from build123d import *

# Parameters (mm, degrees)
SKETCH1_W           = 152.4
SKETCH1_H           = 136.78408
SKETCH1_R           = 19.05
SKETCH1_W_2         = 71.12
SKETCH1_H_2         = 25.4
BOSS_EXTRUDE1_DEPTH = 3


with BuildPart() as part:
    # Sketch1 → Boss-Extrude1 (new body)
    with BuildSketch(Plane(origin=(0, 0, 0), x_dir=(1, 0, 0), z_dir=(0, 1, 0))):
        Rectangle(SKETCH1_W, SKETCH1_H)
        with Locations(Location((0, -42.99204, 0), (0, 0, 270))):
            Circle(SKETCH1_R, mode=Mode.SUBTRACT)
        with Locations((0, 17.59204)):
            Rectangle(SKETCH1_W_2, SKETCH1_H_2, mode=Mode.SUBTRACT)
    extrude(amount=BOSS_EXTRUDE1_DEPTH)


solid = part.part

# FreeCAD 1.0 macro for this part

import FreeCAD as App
import Part
import Sketcher
Q = App.Units.Quantity


def add_polygon(sketch, points):
    """Adds a closed chain of lines whose ends are joined by coincident constraints."""
    first, n = sketch.GeometryCount, len(points)
    for a, b in zip(points, points[1:] + points[:1]):
        sketch.addGeometry(Part.LineSegment(App.Vector(*a, 0), App.Vector(*b, 0)), False)
    for i in range(n):
        sketch.addConstraint(Sketcher.Constraint("Coincident", first + i, 2, first + (i + 1) % n, 1))

doc = App.newDocument("Part")
body = doc.addObject("PartDesign::Body", "Body")

# Sketch on XZ plane
sketch1 = body.newObject("Sketcher::SketchObject", "Sketch")
sketch1.AttachmentSupport = (doc.getObject("XZ_Plane"), [""])
sketch1.MapMode = "FlatFace"
add_polygon(sketch1, [(-76, -68), (-76, 68), (76, 68), (76, -68)])  # lines 0-3
sketch1.addGeometry(Part.Circle(App.Vector(0, 43, 0), App.Vector(0, 0, 1), 19), False)  # 4
add_polygon(sketch1, [(36, -5), (-36, -5), (-36, -30), (36, -30)])  # lines 5-8
sketch1.addConstraint([
    Sketcher.Constraint("Vertical", 0),
    Sketcher.Constraint("Horizontal", 1),
    Sketcher.Constraint("Vertical", 2),
    Sketcher.Constraint("Horizontal", 3),
    Sketcher.Constraint("Horizontal", 5),
    Sketcher.Constraint("Vertical", 6),
    Sketcher.Constraint("Horizontal", 7),
    Sketcher.Constraint("Vertical", 8),
    Sketcher.Constraint("Symmetric", 0, 2, 2, 2, -1, 1),
    Sketcher.Constraint("PointOnObject", 4, 3, -2),
    Sketcher.Constraint("Diameter", 4, Q("1.5 in")),
    Sketcher.Constraint("DistanceX", 1, 1, 1, 2, Q("6 in")),
    Sketcher.Constraint("DistanceY", 6, 2, 6, 1, Q("1 in")),
    Sketcher.Constraint("DistanceX", 5, 2, 5, 1, Q("2.8 in")),
    Sketcher.Constraint("DistanceY", 4, 3, 0, 2, Q("1 in")),
    Sketcher.Constraint("DistanceX", 5, 2, -1, 1, Q("1.4 in")),
    Sketcher.Constraint("DistanceY", 3, 2, 5, 2, Q("2.5 in")),
    Sketcher.Constraint("DistanceY", 0, 1, 0, 2, Q("5.3852 in")),
])
pad1 = body.newObject("PartDesign::Pad", "Pad")
pad1.Profile = sketch1
pad1.Length = 3
pad1.Reversed = True

doc.recompute()
